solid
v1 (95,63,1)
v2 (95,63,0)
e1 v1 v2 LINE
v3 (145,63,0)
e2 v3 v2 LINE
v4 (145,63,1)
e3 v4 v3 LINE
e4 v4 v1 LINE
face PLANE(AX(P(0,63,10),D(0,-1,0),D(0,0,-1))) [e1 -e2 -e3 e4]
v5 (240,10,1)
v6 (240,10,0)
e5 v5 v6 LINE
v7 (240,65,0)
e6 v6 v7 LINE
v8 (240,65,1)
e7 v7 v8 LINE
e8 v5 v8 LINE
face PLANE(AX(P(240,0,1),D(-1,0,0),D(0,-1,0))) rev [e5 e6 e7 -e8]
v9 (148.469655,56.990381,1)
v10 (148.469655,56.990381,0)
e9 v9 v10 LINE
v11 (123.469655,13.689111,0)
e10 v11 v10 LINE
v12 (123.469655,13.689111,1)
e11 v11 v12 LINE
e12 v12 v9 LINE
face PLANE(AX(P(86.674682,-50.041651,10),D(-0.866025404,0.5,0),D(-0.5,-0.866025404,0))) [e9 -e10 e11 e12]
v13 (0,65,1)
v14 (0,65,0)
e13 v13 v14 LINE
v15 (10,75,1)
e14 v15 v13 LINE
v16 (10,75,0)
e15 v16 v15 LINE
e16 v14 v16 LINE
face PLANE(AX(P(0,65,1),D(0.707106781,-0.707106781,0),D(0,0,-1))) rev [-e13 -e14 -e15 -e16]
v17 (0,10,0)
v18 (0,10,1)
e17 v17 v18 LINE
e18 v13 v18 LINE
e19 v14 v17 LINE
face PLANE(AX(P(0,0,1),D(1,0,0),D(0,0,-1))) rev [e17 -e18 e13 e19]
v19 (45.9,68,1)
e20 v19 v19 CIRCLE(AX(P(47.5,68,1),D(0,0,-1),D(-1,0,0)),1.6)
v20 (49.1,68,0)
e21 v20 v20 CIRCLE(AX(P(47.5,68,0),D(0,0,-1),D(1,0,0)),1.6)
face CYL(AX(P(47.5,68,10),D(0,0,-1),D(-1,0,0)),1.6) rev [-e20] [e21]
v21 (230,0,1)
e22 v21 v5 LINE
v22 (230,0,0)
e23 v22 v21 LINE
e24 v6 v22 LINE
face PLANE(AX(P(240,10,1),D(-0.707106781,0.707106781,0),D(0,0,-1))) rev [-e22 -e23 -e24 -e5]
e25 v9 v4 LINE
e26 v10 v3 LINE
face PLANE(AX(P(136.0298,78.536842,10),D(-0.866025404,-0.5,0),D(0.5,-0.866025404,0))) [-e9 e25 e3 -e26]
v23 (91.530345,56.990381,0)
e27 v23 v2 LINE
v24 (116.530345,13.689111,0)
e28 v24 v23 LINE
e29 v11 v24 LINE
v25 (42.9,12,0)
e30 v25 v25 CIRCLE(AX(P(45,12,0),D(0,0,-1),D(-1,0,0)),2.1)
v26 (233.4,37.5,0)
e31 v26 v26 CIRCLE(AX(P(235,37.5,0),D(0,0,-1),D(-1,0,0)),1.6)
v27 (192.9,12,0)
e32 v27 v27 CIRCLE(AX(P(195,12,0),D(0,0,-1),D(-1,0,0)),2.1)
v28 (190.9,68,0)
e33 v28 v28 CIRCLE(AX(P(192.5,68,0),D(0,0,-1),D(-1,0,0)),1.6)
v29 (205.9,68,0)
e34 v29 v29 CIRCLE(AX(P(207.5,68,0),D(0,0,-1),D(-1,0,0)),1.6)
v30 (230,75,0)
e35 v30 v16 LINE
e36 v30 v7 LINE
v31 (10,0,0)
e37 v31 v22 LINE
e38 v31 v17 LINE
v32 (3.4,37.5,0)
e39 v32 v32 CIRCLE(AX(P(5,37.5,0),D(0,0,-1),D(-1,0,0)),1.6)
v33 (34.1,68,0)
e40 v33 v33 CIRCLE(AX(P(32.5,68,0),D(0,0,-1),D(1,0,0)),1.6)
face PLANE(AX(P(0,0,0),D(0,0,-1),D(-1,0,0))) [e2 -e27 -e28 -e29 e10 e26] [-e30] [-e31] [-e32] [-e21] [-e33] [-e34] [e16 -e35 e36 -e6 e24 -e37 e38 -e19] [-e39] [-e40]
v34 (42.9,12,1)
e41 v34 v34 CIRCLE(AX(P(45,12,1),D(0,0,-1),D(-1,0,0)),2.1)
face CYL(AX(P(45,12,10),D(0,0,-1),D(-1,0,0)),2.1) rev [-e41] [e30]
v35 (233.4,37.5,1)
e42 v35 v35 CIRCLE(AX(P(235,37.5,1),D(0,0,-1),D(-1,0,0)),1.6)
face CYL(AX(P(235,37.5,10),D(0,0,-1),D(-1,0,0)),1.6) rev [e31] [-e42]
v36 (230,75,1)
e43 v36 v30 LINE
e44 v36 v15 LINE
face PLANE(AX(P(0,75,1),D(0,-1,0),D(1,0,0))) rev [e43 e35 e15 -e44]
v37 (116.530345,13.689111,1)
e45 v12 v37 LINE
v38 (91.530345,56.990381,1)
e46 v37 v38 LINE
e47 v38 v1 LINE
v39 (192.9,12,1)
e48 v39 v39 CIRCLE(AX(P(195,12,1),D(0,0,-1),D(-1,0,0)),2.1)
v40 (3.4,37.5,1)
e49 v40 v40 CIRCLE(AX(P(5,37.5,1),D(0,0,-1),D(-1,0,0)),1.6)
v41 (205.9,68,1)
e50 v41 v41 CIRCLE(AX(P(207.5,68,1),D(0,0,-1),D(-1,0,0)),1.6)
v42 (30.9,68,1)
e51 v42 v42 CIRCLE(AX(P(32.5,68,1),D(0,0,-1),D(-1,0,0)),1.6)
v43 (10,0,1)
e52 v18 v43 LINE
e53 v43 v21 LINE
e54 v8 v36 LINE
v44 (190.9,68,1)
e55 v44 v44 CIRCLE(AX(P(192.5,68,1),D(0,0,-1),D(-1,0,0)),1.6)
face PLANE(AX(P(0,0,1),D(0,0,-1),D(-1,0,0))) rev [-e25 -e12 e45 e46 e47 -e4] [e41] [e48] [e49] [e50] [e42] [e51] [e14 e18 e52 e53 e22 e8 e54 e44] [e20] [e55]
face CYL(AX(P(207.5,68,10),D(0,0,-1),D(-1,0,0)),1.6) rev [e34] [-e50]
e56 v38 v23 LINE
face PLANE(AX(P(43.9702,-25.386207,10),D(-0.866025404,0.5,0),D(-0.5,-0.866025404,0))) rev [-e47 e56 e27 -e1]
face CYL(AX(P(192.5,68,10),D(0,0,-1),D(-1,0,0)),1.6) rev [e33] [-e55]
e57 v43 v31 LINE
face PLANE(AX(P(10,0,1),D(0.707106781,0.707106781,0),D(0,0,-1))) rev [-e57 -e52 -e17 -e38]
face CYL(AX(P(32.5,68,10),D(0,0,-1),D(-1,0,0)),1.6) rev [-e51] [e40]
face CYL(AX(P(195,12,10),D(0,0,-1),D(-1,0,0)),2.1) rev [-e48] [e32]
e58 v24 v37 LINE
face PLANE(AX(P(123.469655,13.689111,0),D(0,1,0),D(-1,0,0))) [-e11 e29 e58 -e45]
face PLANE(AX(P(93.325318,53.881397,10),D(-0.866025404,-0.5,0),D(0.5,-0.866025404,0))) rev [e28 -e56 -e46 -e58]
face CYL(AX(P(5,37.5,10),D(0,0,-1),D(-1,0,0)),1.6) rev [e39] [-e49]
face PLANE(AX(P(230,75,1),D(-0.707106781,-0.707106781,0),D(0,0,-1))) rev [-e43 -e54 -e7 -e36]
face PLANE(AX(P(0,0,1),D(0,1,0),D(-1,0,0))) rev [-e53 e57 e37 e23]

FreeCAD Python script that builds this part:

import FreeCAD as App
import Part
import Sketcher

V = App.Vector
Q = App.Units.Quantity


def edges_at(feature, points):
    """Names of the edges that pass closest to the given points."""
    edges = feature.Shape.Edges
    near = lambda p: min(range(len(edges)), key=lambda i: edges[i].distToShape(Part.Vertex(*p))[0])
    return sorted({f"Edge{near(p) + 1}" for p in points})

doc = App.newDocument("Part")
body = doc.addObject("PartDesign::Body", "Body")

sketch1 = doc.addObject("Sketcher::SketchObject", "Sketch")
body.addObject(sketch1)
sketch1.AttachmentSupport = (doc.XY_Plane, [""])
sketch1.MapMode = "FlatFace"
sketch1.addGeometry(Part.LineSegment(V(0, 75, 0), V(0, 0, 0)), False)
sketch1.addGeometry(Part.LineSegment(V(0, 0, 0), V(240, 0, 0)), False)
sketch1.addGeometry(Part.LineSegment(V(240, 0, 0), V(240, 75, 0)), False)
sketch1.addGeometry(Part.LineSegment(V(240, 75, 0), V(0, 75, 0)), False)
sketch1.addConstraint(Sketcher.Constraint("Coincident", 0, 2, 1, 1))
sketch1.addConstraint(Sketcher.Constraint("Coincident", 1, 2, 2, 1))
sketch1.addConstraint(Sketcher.Constraint("Coincident", 2, 2, 3, 1))
sketch1.addConstraint(Sketcher.Constraint("Coincident", 3, 2, 0, 1))
sketch1.addConstraint(Sketcher.Constraint("Vertical", 0))
sketch1.addConstraint(Sketcher.Constraint("Horizontal", 1))
sketch1.addConstraint(Sketcher.Constraint("Vertical", 2))
sketch1.addConstraint(Sketcher.Constraint("Horizontal", 3))
sketch1.addConstraint(Sketcher.Constraint("Coincident", 0, 2, -1, 1))
sketch1.addConstraint(Sketcher.Constraint("DistanceX", 1, 1, 1, 2, 240.0))
sketch1.addConstraint(Sketcher.Constraint("DistanceY", 0, 2, 0, 1, 75.0))
pad1 = doc.addObject("PartDesign::Pad", "Pad")
body.addObject(pad1)
pad1.Profile = sketch1
pad1.Length = 1
doc.recompute()

chamfer = doc.addObject("PartDesign::Chamfer", "Chamfer")
body.addObject(chamfer)
chamfer.Base = (pad1, edges_at(pad1, [
    (0, 75, 0.5),
    (240, 75, 0.5),
    (240, 0, 0.5),
    (0, 0, 0.5),
]))
chamfer.Size = 10

sketch2 = doc.addObject("Sketcher::SketchObject", "Sketch001")
body.addObject(sketch2)
sketch2.AttachmentSupport = (doc.XY_Plane, [""])
sketch2.MapMode = "FlatFace"
sketch2.addGeometry(Part.LineSegment(V(148, 57, 0), V(135, 34, 0)), False)
sketch2.addGeometry(Part.LineSegment(V(135, 34, 0), V(140, 25, 0)), False)
sketch2.addGeometry(Part.LineSegment(V(140, 25, 0), V(130, 8, 0)), False)
sketch2.addGeometry(Part.LineSegment(V(130, 8, 0), V(110, 8, 0)), False)
sketch2.addGeometry(Part.LineSegment(V(110, 8, 0), V(100, 25, 0)), False)
sketch2.addGeometry(Part.LineSegment(V(100, 25, 0), V(105, 34, 0)), False)
sketch2.addGeometry(Part.LineSegment(V(105, 34, 0), V(92, 57, 0)), False)
sketch2.addGeometry(Part.LineSegment(V(92, 57, 0), V(95, 63, 0)), False)
sketch2.addGeometry(Part.LineSegment(V(95, 63, 0), V(145, 63, 0)), False)
sketch2.addGeometry(Part.LineSegment(V(145, 63, 0), V(148, 57, 0)), False)
sketch2.addConstraint(Sketcher.Constraint("Coincident", 0, 2, 1, 1))
sketch2.addConstraint(Sketcher.Constraint("Coincident", 1, 2, 2, 1))
sketch2.addConstraint(Sketcher.Constraint("Coincident", 2, 2, 3, 1))
sketch2.addConstraint(Sketcher.Constraint("Coincident", 3, 2, 4, 1))
sketch2.addConstraint(Sketcher.Constraint("Coincident", 4, 2, 5, 1))
sketch2.addConstraint(Sketcher.Constraint("Coincident", 5, 2, 6, 1))
sketch2.addConstraint(Sketcher.Constraint("Coincident", 6, 2, 7, 1))
sketch2.addConstraint(Sketcher.Constraint("Coincident", 7, 2, 8, 1))
sketch2.addConstraint(Sketcher.Constraint("Coincident", 8, 2, 9, 1))
sketch2.addConstraint(Sketcher.Constraint("Coincident", 9, 2, 0, 1))
sketch2.addConstraint(Sketcher.Constraint("Horizontal", 3))
sketch2.addConstraint(Sketcher.Constraint("Horizontal", 8))
sketch2.addConstraint(Sketcher.Constraint("Parallel", 0, 2))
sketch2.addConstraint(Sketcher.Constraint("Parallel", 1, 4))
sketch2.addConstraint(Sketcher.Constraint("Parallel", 2, 5))
sketch2.addConstraint(Sketcher.Constraint("Parallel", 4, 6))
sketch2.addConstraint(Sketcher.Constraint("Parallel", 5, 7))
sketch2.addConstraint(Sketcher.Constraint("Parallel", 6, 9))
sketch2.addConstraint(Sketcher.Constraint("Horizontal", 1, 2, 4, 2))
sketch2.addConstraint(Sketcher.Constraint("Horizontal", 0, 2, 5, 2))
sketch2.addConstraint(Sketcher.Constraint("Horizontal", 6, 2, 9, 2))
sketch2.addConstraint(Sketcher.Constraint("Equal", 2, 4))
sketch2.addConstraint(Sketcher.Constraint("DistanceX", 3, 2, 3, 1, 20.0))
sketch2.addConstraint(Sketcher.Constraint("DistanceX", 8, 1, 8, 2, 50.0))
sketch2.addConstraint(Sketcher.Constraint("Angle", 0, Q("-120 deg")))
sketch2.addConstraint(Sketcher.Constraint("Distance", 1, 10.0))
sketch2.addConstraint(Sketcher.Constraint("Distance", 2, 20.0))
sketch2.addConstraint(Sketcher.Constraint("DistanceX", -1, 1, 0, 2, 135.0))
sketch2.addConstraint(Sketcher.Constraint("DistanceY", -1, 1, 1, 2, 25.0))
sketch2.addConstraint(Sketcher.Constraint("DistanceY", -1, 1, 7, 2, 63.0))
pocket1 = doc.addObject("PartDesign::Pocket", "Pocket")
body.addObject(pocket1)
pocket1.Profile = sketch2
pocket1.Length = 10
pocket1.Reversed = True

sketch3 = doc.addObject("Sketcher::SketchObject", "Sketch002")
body.addObject(sketch3)
sketch3.AttachmentSupport = (doc.XY_Plane, [""])
sketch3.MapMode = "FlatFace"
sketch3.addGeometry(Part.Circle(V(195, 12, 0), V(0, 0, 1), 2.1), False)
sketch3.addGeometry(Part.Circle(V(45, 12, 0), V(0, 0, 1), 2.1), False)
sketch3.addGeometry(Part.Circle(V(207.5, 68, 0), V(0, 0, 1), 1.6), False)
sketch3.addGeometry(Part.Circle(V(192.5, 68, 0), V(0, 0, 1), 1.6), False)
sketch3.addGeometry(Part.Circle(V(47.5, 68, 0), V(0, 0, 1), 1.6), False)
sketch3.addGeometry(Part.Circle(V(32.5, 68, 0), V(0, 0, 1), 1.6), False)
sketch3.addGeometry(Part.Circle(V(235, 37.5, 0), V(0, 0, 1), 1.6), False)
sketch3.addGeometry(Part.Circle(V(5, 37.5, 0), V(0, 0, 1), 1.6), False)
sketch3.addConstraint(Sketcher.Constraint("Equal", 0, 1))
sketch3.addConstraint(Sketcher.Constraint("Equal", 2, 3))
sketch3.addConstraint(Sketcher.Constraint("Equal", 3, 4))
sketch3.addConstraint(Sketcher.Constraint("Equal", 4, 5))
sketch3.addConstraint(Sketcher.Constraint("Equal", 5, 6))
sketch3.addConstraint(Sketcher.Constraint("Equal", 6, 7))
sketch3.addConstraint(Sketcher.Constraint("Horizontal", 0, 3, 1, 3))
sketch3.addConstraint(Sketcher.Constraint("Horizontal", 2, 3, 3, 3))
sketch3.addConstraint(Sketcher.Constraint("Horizontal", 3, 3, 4, 3))
sketch3.addConstraint(Sketcher.Constraint("Horizontal", 4, 3, 5, 3))
sketch3.addConstraint(Sketcher.Constraint("Horizontal", 6, 3, 7, 3))
sketch3.addConstraint(Sketcher.Constraint("Diameter", 0, 4.2))
sketch3.addConstraint(Sketcher.Constraint("Diameter", 2, 3.2))
sketch3.addConstraint(Sketcher.Constraint("DistanceX", -1, 1, 0, 3, 195.0))
sketch3.addConstraint(Sketcher.Constraint("DistanceY", -1, 1, 0, 3, 12.0))
sketch3.addConstraint(Sketcher.Constraint("DistanceX", -1, 1, 1, 3, 45.0))
sketch3.addConstraint(Sketcher.Constraint("DistanceY", -1, 1, 2, 3, 68.0))
sketch3.addConstraint(Sketcher.Constraint("DistanceX", -1, 1, 6, 3, 235.0))
sketch3.addConstraint(Sketcher.Constraint("DistanceX", -1, 1, 7, 3, 5.0))
sketch3.addConstraint(Sketcher.Constraint("DistanceX", 3, 3, 2, 3, 15.0))
sketch3.addConstraint(Sketcher.Constraint("DistanceX", 4, 3, 3, 3, 145.0))
sketch3.addConstraint(Sketcher.Constraint("DistanceX", 5, 3, 4, 3, 15.0))
sketch3.addConstraint(Sketcher.Constraint("DistanceX", -1, 1, 2, 3, 207.5))
sketch3.addConstraint(Sketcher.Constraint("DistanceY", -1, 1, 6, 3, 37.5))
pocket2 = doc.addObject("PartDesign::Pocket", "Pocket001")
body.addObject(pocket2)
pocket2.Profile = sketch3
pocket2.Length = 10
pocket2.Reversed = True

sketch4 = doc.addObject("Sketcher::SketchObject", "Sketch003")
body.addObject(sketch4)
sketch4.AttachmentSupport = (doc.XY_Plane, [""])
sketch4.MapMode = "FlatFace"
sketch4.AttachmentOffset = App.Placement(V(0, 0, 1), App.Rotation())
sketch4.addGeometry(Part.LineSegment(V(135, 34, 0), V(123, 14, 0)), False)
sketch4.addGeometry(Part.LineSegment(V(123, 14, 0), V(117, 14, 0)), False)
sketch4.addGeometry(Part.LineSegment(V(117, 14, 0), V(105, 34, 0)), False)
sketch4.addGeometry(Part.LineSegment(V(105, 34, 0), V(100, 25, 0)), False)
sketch4.addGeometry(Part.LineSegment(V(100, 25, 0), V(110, 8, 0)), False)
sketch4.addGeometry(Part.LineSegment(V(110, 8, 0), V(130, 8, 0)), False)
sketch4.addGeometry(Part.LineSegment(V(130, 8, 0), V(140, 25, 0)), False)
sketch4.addGeometry(Part.LineSegment(V(140, 25, 0), V(135, 34, 0)), False)
sketch4.addConstraint(Sketcher.Constraint("Coincident", 0, 2, 1, 1))
sketch4.addConstraint(Sketcher.Constraint("Coincident", 1, 2, 2, 1))
sketch4.addConstraint(Sketcher.Constraint("Coincident", 2, 2, 3, 1))
sketch4.addConstraint(Sketcher.Constraint("Coincident", 3, 2, 4, 1))
sketch4.addConstraint(Sketcher.Constraint("Coincident", 4, 2, 5, 1))
sketch4.addConstraint(Sketcher.Constraint("Coincident", 5, 2, 6, 1))
sketch4.addConstraint(Sketcher.Constraint("Coincident", 6, 2, 7, 1))
sketch4.addConstraint(Sketcher.Constraint("Coincident", 7, 2, 0, 1))
sketch4.addConstraint(Sketcher.Constraint("Horizontal", 1))
sketch4.addConstraint(Sketcher.Constraint("Horizontal", 5))
sketch4.addConstraint(Sketcher.Constraint("Parallel", 0, 3))
sketch4.addConstraint(Sketcher.Constraint("Parallel", 2, 4))
sketch4.addConstraint(Sketcher.Constraint("Parallel", 3, 6))
sketch4.addConstraint(Sketcher.Constraint("Parallel", 4, 7))
sketch4.addConstraint(Sketcher.Constraint("Horizontal", 3, 2, 6, 2))
sketch4.addConstraint(Sketcher.Constraint("Horizontal", 2, 2, 7, 2))
sketch4.addConstraint(Sketcher.Constraint("Equal", 0, 2))
sketch4.addConstraint(Sketcher.Constraint("DistanceX", 5, 1, 5, 2, 20.0))
sketch4.addConstraint(Sketcher.Constraint("Angle", 0, Q("-120 deg")))
sketch4.addConstraint(Sketcher.Constraint("Distance", 3, 10.0))
sketch4.addConstraint(Sketcher.Constraint("Distance", 4, 20.0))
sketch4.addConstraint(Sketcher.Constraint("DistanceX", -1, 1, 2, 2, 105.0))
sketch4.addConstraint(Sketcher.Constraint("DistanceY", -1, 1, 3, 2, 25.0))
sketch4.addConstraint(Sketcher.Constraint("DistanceX", 1, 2, 1, 1, 6.93931))
pad2 = doc.addObject("PartDesign::Pad", "Pad001")
body.addObject(pad2)
pad2.Profile = sketch4
pad2.Length = 1
pad2.Reversed = True

doc.recompute()
